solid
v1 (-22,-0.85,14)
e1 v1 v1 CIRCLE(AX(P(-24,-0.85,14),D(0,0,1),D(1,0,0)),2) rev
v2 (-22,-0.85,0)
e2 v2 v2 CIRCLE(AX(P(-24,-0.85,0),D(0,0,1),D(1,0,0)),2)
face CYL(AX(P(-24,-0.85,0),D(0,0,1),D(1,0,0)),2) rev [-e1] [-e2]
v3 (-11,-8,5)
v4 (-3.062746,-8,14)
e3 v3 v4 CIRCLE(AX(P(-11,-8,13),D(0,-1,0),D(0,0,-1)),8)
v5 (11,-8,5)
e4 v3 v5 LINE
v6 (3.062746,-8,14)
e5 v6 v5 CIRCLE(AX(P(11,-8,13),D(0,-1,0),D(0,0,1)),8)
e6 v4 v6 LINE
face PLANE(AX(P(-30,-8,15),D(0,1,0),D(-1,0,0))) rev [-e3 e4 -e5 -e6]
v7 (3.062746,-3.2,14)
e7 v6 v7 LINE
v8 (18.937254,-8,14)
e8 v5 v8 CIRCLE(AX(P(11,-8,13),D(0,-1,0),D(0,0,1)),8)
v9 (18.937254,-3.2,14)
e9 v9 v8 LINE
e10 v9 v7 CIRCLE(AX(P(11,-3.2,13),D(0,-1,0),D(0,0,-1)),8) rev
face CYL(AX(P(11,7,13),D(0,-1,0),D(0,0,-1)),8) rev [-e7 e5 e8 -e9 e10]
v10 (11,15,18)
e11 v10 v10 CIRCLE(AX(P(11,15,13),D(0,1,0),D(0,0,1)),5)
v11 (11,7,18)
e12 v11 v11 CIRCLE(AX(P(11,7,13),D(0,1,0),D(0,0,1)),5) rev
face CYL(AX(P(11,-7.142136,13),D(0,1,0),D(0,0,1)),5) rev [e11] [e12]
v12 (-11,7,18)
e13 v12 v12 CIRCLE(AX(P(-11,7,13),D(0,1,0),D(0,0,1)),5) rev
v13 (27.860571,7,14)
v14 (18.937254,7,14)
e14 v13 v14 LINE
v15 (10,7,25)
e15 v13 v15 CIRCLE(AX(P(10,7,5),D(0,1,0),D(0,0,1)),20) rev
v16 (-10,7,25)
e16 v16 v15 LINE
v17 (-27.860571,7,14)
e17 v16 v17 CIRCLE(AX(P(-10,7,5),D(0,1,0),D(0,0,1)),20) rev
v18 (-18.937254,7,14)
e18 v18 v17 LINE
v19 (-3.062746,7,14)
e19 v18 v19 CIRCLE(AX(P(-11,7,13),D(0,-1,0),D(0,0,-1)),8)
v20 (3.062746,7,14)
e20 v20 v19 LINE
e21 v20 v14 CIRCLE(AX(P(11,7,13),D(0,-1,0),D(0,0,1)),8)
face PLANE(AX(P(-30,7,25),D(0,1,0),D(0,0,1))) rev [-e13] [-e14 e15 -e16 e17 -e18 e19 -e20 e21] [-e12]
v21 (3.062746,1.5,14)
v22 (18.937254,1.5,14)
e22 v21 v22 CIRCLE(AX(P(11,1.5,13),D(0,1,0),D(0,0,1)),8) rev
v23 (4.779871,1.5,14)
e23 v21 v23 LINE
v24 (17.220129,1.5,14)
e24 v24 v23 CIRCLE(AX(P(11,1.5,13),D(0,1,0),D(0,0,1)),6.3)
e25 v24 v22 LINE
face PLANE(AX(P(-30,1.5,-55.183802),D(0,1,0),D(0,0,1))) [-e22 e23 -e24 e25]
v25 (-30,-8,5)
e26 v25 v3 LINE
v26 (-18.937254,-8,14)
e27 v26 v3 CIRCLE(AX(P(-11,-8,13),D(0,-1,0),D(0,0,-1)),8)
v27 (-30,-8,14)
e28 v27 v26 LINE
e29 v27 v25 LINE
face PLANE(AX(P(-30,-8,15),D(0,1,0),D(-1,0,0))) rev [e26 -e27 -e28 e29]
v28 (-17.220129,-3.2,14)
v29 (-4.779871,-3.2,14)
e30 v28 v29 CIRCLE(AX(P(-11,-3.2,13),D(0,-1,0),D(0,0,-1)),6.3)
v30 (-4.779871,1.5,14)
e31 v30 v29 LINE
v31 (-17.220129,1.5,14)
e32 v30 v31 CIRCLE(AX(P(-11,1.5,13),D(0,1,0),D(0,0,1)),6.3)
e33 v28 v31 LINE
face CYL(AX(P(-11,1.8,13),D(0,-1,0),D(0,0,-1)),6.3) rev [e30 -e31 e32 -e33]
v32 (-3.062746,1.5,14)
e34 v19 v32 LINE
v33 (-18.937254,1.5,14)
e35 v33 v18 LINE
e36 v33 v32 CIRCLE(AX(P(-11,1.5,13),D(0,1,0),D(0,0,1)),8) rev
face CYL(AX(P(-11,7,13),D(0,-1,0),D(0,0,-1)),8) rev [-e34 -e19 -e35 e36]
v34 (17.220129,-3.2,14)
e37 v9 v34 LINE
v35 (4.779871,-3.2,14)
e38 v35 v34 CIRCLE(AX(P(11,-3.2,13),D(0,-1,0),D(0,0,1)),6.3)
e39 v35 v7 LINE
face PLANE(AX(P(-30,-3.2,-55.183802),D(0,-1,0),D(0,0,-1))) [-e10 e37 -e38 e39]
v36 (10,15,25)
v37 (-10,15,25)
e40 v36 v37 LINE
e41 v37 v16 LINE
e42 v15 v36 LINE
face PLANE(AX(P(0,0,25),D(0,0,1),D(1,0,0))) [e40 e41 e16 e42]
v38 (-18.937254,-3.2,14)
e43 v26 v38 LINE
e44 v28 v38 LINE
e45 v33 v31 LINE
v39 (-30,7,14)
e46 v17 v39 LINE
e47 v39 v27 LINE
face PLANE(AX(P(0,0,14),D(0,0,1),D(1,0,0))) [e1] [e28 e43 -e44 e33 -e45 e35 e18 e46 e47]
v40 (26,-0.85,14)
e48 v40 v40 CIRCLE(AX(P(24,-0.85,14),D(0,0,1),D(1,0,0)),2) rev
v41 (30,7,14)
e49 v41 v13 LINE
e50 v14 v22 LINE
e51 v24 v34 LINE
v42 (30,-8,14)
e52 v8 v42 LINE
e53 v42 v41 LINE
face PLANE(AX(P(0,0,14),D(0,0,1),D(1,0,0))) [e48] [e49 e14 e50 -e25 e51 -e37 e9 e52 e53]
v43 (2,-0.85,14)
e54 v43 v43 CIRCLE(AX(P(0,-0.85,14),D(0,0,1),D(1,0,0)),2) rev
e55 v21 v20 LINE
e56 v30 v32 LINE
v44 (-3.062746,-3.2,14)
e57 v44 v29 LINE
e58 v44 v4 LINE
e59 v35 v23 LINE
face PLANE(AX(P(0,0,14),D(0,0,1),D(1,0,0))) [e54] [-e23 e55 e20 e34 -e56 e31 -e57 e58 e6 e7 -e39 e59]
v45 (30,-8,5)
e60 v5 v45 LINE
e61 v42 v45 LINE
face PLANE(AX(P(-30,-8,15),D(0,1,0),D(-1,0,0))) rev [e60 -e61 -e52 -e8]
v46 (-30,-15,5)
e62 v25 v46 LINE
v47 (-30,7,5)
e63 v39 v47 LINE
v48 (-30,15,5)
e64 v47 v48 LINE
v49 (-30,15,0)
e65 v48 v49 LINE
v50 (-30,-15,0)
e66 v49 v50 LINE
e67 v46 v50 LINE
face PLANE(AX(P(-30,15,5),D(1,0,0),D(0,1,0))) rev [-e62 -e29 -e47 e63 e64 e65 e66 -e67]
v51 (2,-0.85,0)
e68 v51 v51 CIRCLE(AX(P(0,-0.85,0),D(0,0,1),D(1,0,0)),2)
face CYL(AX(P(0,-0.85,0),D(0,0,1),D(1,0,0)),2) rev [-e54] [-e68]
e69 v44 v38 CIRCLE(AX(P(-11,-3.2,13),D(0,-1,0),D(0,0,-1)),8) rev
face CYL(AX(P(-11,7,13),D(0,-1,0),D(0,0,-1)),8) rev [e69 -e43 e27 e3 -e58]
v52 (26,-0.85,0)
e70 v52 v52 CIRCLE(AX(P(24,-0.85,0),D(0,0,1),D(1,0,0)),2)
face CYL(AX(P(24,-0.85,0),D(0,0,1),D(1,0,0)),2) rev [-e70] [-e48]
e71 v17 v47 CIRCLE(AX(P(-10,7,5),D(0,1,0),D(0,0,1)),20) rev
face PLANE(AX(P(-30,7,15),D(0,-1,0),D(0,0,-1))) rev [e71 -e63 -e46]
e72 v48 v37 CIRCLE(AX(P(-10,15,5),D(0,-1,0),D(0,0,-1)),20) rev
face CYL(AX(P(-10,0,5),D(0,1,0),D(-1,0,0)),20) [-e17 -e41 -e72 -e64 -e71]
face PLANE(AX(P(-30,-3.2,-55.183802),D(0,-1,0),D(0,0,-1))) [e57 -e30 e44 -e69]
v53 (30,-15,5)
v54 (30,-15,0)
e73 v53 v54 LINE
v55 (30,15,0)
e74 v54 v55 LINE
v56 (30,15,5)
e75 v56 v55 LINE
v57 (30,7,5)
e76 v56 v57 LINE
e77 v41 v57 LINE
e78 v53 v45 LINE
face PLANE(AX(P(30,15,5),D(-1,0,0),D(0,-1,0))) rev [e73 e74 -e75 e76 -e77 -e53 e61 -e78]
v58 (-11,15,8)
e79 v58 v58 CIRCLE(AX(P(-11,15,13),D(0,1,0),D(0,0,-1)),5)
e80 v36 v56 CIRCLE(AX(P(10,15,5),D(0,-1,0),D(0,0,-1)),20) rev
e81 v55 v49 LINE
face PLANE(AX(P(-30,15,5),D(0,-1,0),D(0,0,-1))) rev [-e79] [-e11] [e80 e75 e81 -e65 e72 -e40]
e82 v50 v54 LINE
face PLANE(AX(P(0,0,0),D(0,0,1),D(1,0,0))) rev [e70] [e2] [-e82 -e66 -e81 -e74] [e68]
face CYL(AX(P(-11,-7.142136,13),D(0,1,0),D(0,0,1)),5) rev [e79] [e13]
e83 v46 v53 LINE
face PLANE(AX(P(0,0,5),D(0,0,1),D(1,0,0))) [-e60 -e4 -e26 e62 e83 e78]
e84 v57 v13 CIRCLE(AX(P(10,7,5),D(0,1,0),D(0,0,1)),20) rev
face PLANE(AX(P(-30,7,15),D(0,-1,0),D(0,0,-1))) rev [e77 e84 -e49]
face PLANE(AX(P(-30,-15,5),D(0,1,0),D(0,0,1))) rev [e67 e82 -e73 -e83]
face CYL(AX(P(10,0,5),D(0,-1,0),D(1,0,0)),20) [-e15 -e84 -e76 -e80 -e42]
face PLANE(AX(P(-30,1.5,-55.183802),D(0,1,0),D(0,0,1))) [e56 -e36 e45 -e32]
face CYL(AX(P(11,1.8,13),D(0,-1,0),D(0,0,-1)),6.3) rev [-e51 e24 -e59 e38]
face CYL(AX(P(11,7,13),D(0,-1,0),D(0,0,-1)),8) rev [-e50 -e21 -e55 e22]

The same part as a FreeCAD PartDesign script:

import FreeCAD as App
import Part
import Sketcher
from FreeCAD import Vector


def edges_at(feature, points):
    """Names of the edges that pass closest to the given points."""
    edges = feature.Shape.Edges
    near = lambda p: min(range(len(edges)), key=lambda i: edges[i].distToShape(Part.Vertex(*p))[0])
    return sorted({f"Edge{near(p) + 1}" for p in points})


def add_polygon(sketch, points):
    """Adds a closed chain of lines whose ends are joined by coincident constraints."""
    first, n = sketch.GeometryCount, len(points)
    for a, b in zip(points, points[1:] + points[:1]):
        sketch.addGeometry(Part.LineSegment(App.Vector(*a, 0), App.Vector(*b, 0)), False)
    for i in range(n):
        sketch.addConstraint(Sketcher.Constraint("Coincident", first + i, 2, first + (i + 1) % n, 1))

doc = App.newDocument("Part")
params = doc.addObject("Spreadsheet::Sheet", "Params")
for row, (alias, value) in enumerate([
    ("sketch1_width", "60 mm"),
    ("sketch1_height", "30 mm"),
    ("pad1_length", "5 mm"),
    ("sketch2_width", "60 mm"),
    ("sketch2_height", "8 mm"),
    ("pad2_length", "20 mm"),
    ("sketch3_diameter", "10 mm"),
    ("pocket1_length", "8 mm"),
    ("fillet_radius", "20 mm"),
    ("sketch4_width", "60 mm"),
    ("sketch4_height", "15 mm"),
    ("pad3_length", "10 mm"),
    ("sketch5_diameter", "16 mm"),
    ("pocket2_length", "15 mm"),
    ("sketch6_width", "60 mm"),
    ("sketch6_height", "4.7 mm"),
    ("pad4_length", "10 mm"),
    ("sketch7_diameter", "12.6 mm"),
    ("pocket3_length", "5 mm"),
    ("sketch8_diameter", "4 mm"),
    ("sketch9_width", "60 mm"),
    ("sketch9_height", "15 mm"),
    ("pocket5_length", "1 mm"),
], start=1):
    params.set(f"A{row}", alias)
    params.set(f"B{row}", "=" + value)
    params.setAlias(f"B{row}", alias)

body = doc.addObject("PartDesign::Body", "Body")

# Sketch on XY plane
sketch1 = body.newObject("Sketcher::SketchObject", "Sketch")
sketch1.AttachmentSupport = (doc.getObject("XY_Plane"), [""])
sketch1.MapMode = "FlatFace"
add_polygon(sketch1, [(-30, 15), (-30, -15), (30, -15), (30, 15)])  # lines 0-3
sketch1.addConstraint([
    Sketcher.Constraint("Vertical", 0),
    Sketcher.Constraint("Horizontal", 1),
    Sketcher.Constraint("Vertical", 2),
    Sketcher.Constraint("Horizontal", 3),
    Sketcher.Constraint("Symmetric", 0, 2, 2, 2, -1, 1),
    Sketcher.Constraint("DistanceX", 1, 1, 1, 2, 60.0),
    Sketcher.Constraint("DistanceY", 0, 2, 0, 1, 30.0),
])
sketch1.setExpression("Constraints[9]", "Params.sketch1_width")
sketch1.setExpression("Constraints[10]", "Params.sketch1_height")
pad1 = body.newObject("PartDesign::Pad", "Pad")
pad1.Profile = sketch1
pad1.setExpression("Length", "Params.pad1_length")

# Sketch on XY plane
sketch2 = body.newObject("Sketcher::SketchObject", "Sketch001")
sketch2.AttachmentSupport = (doc.getObject("XY_Plane"), [""])
sketch2.MapMode = "FlatFace"
sketch2.AttachmentOffset = App.Placement(Vector(0, 0, 5), App.Rotation())
add_polygon(sketch2, [(-30, 15), (-30, 7), (30, 7), (30, 15)])  # lines 0-3
sketch2.addConstraint([
    Sketcher.Constraint("Vertical", 0),
    Sketcher.Constraint("Horizontal", 1),
    Sketcher.Constraint("Vertical", 2),
    Sketcher.Constraint("Horizontal", 3),
    Sketcher.Constraint("DistanceX", 1, 1, 1, 2, 60.0),
    Sketcher.Constraint("DistanceY", 0, 2, 0, 1, 8.0),
    Sketcher.Constraint("DistanceX", 0, 2, -1, 1, 30.0),
    Sketcher.Constraint("DistanceY", -1, 1, 0, 2, 7.0),
])
sketch2.setExpression("Constraints[8]", "Params.sketch2_width")
sketch2.setExpression("Constraints[9]", "Params.sketch2_height")
pad2 = body.newObject("PartDesign::Pad", "Pad001")
pad2.Profile = sketch2
pad2.setExpression("Length", "Params.pad2_length")

# Sketch on XZ plane
sketch3 = body.newObject("Sketcher::SketchObject", "Sketch002")
sketch3.AttachmentSupport = (doc.getObject("XZ_Plane"), [""])
sketch3.MapMode = "FlatFace"
sketch3.AttachmentOffset = App.Placement(Vector(0, 0, -15), App.Rotation())
sketch3.addGeometry([
    Part.Circle(Vector(11, 13, 0), Vector(0, 0, 1), 5),
    Part.Circle(Vector(-11, 13, 0), Vector(0, 0, 1), 5),
], False)
sketch3.addConstraint([
    Sketcher.Constraint("Equal", 0, 1),
    Sketcher.Constraint("Symmetric", 0, 3, 1, 3, -2),
    Sketcher.Constraint("Diameter", 0, 10.0),
    Sketcher.Constraint("DistanceX", -1, 1, 0, 3, 11.0),
    Sketcher.Constraint("DistanceY", -1, 1, 0, 3, 13.0),
])
sketch3.setExpression("Constraints[2]", "Params.sketch3_diameter")
pocket1 = body.newObject("PartDesign::Pocket", "Pocket")
pocket1.Profile = sketch3
pocket1.setExpression("Length", "Params.pocket1_length")
pocket1.Reversed = True
doc.recompute()

fillet = body.newObject("PartDesign::Fillet", "Fillet")
fillet.Base = (pocket1, edges_at(pocket1, [(30, 11, 25), (-30, 11, 25)]))
fillet.setExpression("Radius", "Params.fillet_radius")

# Sketch on XY plane
sketch4 = body.newObject("Sketcher::SketchObject", "Sketch003")
sketch4.AttachmentSupport = (doc.getObject("XY_Plane"), [""])
sketch4.MapMode = "FlatFace"
sketch4.AttachmentOffset = App.Placement(Vector(0, 0, 5), App.Rotation())
add_polygon(sketch4, [(-30, 7), (-30, -8), (30, -8), (30, 7)])  # lines 0-3
sketch4.addConstraint([
    Sketcher.Constraint("Vertical", 0),
    Sketcher.Constraint("Horizontal", 1),
    Sketcher.Constraint("Vertical", 2),
    Sketcher.Constraint("Horizontal", 3),
    Sketcher.Constraint("DistanceX", 1, 1, 1, 2, 60.0),
    Sketcher.Constraint("DistanceY", 0, 2, 0, 1, 15.0),
    Sketcher.Constraint("DistanceX", 0, 2, -1, 1, 30.0),
    Sketcher.Constraint("DistanceY", 0, 2, -1, 1, 8.0),
])
sketch4.setExpression("Constraints[8]", "Params.sketch4_width")
sketch4.setExpression("Constraints[9]", "Params.sketch4_height")
pad3 = body.newObject("PartDesign::Pad", "Pad002")
pad3.Profile = sketch4
pad3.setExpression("Length", "Params.pad3_length")

# Sketch on XZ plane
sketch5 = body.newObject("Sketcher::SketchObject", "Sketch004")
sketch5.AttachmentSupport = (doc.getObject("XZ_Plane"), [""])
sketch5.MapMode = "FlatFace"
sketch5.AttachmentOffset = App.Placement(Vector(0, 0, 8), App.Rotation())
sketch5.addGeometry([
    Part.Circle(Vector(-11, 13, 0), Vector(0, 0, 1), 8),
    Part.Circle(Vector(11, 13, 0), Vector(0, 0, 1), 8),
], False)
sketch5.addConstraint([
    Sketcher.Constraint("Equal", 0, 1),
    Sketcher.Constraint("Symmetric", 0, 3, 1, 3, -2),
    Sketcher.Constraint("Diameter", 0, 16.0),
    Sketcher.Constraint("DistanceX", 0, 3, -1, 1, 11.0),
    Sketcher.Constraint("DistanceY", -1, 1, 0, 3, 13.0),
])
sketch5.setExpression("Constraints[2]", "Params.sketch5_diameter")
pocket2 = body.newObject("PartDesign::Pocket", "Pocket001")
pocket2.Profile = sketch5
pocket2.setExpression("Length", "Params.pocket2_length")

# Sketch on XY plane
sketch6 = body.newObject("Sketcher::SketchObject", "Sketch005")
sketch6.AttachmentSupport = (doc.getObject("XY_Plane"), [""])
sketch6.MapMode = "FlatFace"
sketch6.AttachmentOffset = App.Placement(Vector(0, 0, 15), App.Rotation())
add_polygon(sketch6, [(-30, 1.5), (-30, -3.2), (30, -3.2), (30, 1.5)])  # lines 0-3
sketch6.addConstraint([
    Sketcher.Constraint("Vertical", 0),
    Sketcher.Constraint("Horizontal", 1),
    Sketcher.Constraint("Vertical", 2),
    Sketcher.Constraint("Horizontal", 3),
    Sketcher.Constraint("DistanceX", 1, 1, 1, 2, 60.0),
    Sketcher.Constraint("DistanceY", 0, 2, 0, 1, 4.7),
    Sketcher.Constraint("DistanceX", 0, 2, -1, 1, 30.0),
    Sketcher.Constraint("DistanceY", 0, 2, -1, 1, 3.2),
])
sketch6.setExpression("Constraints[8]", "Params.sketch6_width")
sketch6.setExpression("Constraints[9]", "Params.sketch6_height")
pad4 = body.newObject("PartDesign::Pad", "Pad003")
pad4.Profile = sketch6
pad4.setExpression("Length", "Params.pad4_length")
pad4.Reversed = True

# Sketch on XZ plane
sketch7 = body.newObject("Sketcher::SketchObject", "Sketch006")
sketch7.AttachmentSupport = (doc.getObject("XZ_Plane"), [""])
sketch7.MapMode = "FlatFace"
sketch7.AttachmentOffset = App.Placement(Vector(0, 0, 3.2), App.Rotation())
sketch7.addGeometry([
    Part.Circle(Vector(-11, 13, 0), Vector(0, 0, 1), 6.3),
    Part.Circle(Vector(11, 13, 0), Vector(0, 0, 1), 6.3),
], False)
sketch7.addConstraint([
    Sketcher.Constraint("Equal", 0, 1),
    Sketcher.Constraint("Symmetric", 0, 3, 1, 3, -2),
    Sketcher.Constraint("Diameter", 0, 12.6),
    Sketcher.Constraint("DistanceX", 0, 3, -1, 1, 11.0),
    Sketcher.Constraint("DistanceY", -1, 1, 0, 3, 13.0),
])
sketch7.setExpression("Constraints[2]", "Params.sketch7_diameter")
pocket3 = body.newObject("PartDesign::Pocket", "Pocket002")
pocket3.Profile = sketch7
pocket3.setExpression("Length", "Params.pocket3_length")

# Sketch on XY plane
sketch8 = body.newObject("Sketcher::SketchObject", "Sketch007")
sketch8.AttachmentSupport = (doc.getObject("XY_Plane"), [""])
sketch8.MapMode = "FlatFace"
sketch8.AttachmentOffset = App.Placement(Vector(0, 0, 15), App.Rotation())
sketch8.addGeometry([
    Part.Circle(Vector(0, -0.85, 0), Vector(0, 0, 1), 2),
    Part.Circle(Vector(24, -0.85, 0), Vector(0, 0, 1), 2),
    Part.Circle(Vector(-24, -0.85, 0), Vector(0, 0, 1), 2),
], False)
sketch8.addConstraint([
    Sketcher.Constraint("Equal", 0, 1),
    Sketcher.Constraint("Equal", 1, 2),
    Sketcher.Constraint("Symmetric", 1, 3, 2, 3, -2),
    Sketcher.Constraint("PointOnObject", 0, 3, -2),
    Sketcher.Constraint("Horizontal", 0, 3, 1, 3),
    Sketcher.Constraint("Diameter", 0, 4.0),
    Sketcher.Constraint("DistanceX", -1, 1, 1, 3, 24.0),
    Sketcher.Constraint("DistanceY", 0, 3, -1, 1, 0.85),
])
sketch8.setExpression("Constraints[5]", "Params.sketch8_diameter")
pocket4 = body.newObject("PartDesign::Pocket", "Pocket003")
pocket4.Profile = sketch8
pocket4.Type = "ThroughAll"

# Sketch on XY plane
sketch9 = body.newObject("Sketcher::SketchObject", "Sketch008")
sketch9.AttachmentSupport = (doc.getObject("XY_Plane"), [""])
sketch9.MapMode = "FlatFace"
sketch9.AttachmentOffset = App.Placement(Vector(0, 0, 15), App.Rotation())
add_polygon(sketch9, [(-30, 7), (-30, -8), (30, -8), (30, 7)])  # lines 0-3
sketch9.addConstraint([
    Sketcher.Constraint("Vertical", 0),
    Sketcher.Constraint("Horizontal", 1),
    Sketcher.Constraint("Vertical", 2),
    Sketcher.Constraint("Horizontal", 3),
    Sketcher.Constraint("DistanceX", 1, 1, 1, 2, 60.0),
    Sketcher.Constraint("DistanceY", 0, 2, 0, 1, 15.0),
    Sketcher.Constraint("DistanceX", 0, 2, -1, 1, 30.0),
    Sketcher.Constraint("DistanceY", 0, 2, -1, 1, 8.0),
])
sketch9.setExpression("Constraints[8]", "Params.sketch9_width")
sketch9.setExpression("Constraints[9]", "Params.sketch9_height")
pocket5 = body.newObject("PartDesign::Pocket", "Pocket004")
pocket5.Profile = sketch9
pocket5.setExpression("Length", "Params.pocket5_length")

doc.recompute()
